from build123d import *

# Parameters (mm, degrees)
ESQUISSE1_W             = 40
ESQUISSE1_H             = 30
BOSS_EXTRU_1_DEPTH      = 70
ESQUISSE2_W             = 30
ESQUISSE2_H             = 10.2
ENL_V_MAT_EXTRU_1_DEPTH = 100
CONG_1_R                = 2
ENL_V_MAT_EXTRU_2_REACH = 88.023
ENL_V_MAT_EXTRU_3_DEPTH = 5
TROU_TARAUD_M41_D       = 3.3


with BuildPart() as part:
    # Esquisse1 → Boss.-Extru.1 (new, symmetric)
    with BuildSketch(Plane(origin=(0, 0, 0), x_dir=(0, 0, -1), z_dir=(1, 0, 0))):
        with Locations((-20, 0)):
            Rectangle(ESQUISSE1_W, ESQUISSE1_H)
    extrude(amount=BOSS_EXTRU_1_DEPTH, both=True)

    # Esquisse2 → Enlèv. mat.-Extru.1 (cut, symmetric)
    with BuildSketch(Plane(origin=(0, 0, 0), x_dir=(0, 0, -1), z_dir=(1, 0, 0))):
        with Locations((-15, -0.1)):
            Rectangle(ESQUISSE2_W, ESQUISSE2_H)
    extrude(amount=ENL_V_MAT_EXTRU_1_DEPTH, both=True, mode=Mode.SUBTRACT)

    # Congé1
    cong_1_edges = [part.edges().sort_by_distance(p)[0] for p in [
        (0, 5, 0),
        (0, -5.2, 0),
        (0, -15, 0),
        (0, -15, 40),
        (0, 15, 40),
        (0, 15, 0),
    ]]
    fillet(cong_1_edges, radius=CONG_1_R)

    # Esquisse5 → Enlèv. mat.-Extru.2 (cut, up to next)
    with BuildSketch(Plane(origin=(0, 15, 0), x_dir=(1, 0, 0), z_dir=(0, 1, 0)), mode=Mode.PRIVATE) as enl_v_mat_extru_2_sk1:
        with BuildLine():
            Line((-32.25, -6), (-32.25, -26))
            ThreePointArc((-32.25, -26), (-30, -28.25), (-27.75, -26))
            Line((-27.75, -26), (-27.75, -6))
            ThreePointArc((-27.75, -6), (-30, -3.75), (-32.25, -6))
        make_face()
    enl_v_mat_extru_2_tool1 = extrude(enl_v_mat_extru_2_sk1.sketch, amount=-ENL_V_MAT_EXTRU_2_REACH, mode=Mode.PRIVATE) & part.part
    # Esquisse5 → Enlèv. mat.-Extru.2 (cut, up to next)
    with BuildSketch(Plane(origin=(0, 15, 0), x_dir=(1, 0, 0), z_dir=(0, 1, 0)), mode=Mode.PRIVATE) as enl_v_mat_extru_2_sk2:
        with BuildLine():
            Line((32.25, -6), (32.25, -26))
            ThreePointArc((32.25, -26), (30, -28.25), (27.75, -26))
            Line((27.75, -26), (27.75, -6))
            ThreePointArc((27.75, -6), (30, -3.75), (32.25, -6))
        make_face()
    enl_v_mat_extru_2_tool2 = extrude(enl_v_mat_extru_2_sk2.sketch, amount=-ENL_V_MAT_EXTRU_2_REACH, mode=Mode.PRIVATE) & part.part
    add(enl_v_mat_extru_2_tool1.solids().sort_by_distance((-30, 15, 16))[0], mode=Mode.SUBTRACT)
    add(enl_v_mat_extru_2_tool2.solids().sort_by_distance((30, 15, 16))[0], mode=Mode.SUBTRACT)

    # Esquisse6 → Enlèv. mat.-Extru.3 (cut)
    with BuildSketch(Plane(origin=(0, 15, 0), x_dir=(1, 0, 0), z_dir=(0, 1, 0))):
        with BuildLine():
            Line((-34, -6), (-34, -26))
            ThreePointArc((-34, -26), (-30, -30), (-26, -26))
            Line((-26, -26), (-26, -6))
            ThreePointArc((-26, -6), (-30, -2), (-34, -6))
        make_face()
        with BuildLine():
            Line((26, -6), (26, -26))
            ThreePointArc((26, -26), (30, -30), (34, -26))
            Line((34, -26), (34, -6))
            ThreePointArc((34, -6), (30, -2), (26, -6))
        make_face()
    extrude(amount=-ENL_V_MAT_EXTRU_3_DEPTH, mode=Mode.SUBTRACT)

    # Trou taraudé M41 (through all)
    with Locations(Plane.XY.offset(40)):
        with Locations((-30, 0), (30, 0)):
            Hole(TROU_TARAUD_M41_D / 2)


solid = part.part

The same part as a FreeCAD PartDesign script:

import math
import FreeCAD as App
import Part
import Sketcher

V = App.Vector
Q = App.Units.Quantity


def edges_at(feature, points):
    """Names of the edges that pass closest to the given points."""
    edges = feature.Shape.Edges
    near = lambda p: min(range(len(edges)), key=lambda i: edges[i].distToShape(Part.Vertex(*p))[0])
    return sorted({f"Edge{near(p) + 1}" for p in points})


def add_polygon(sketch, points):
    """Adds a closed chain of lines whose ends are joined by coincident constraints."""
    first, n = sketch.GeometryCount, len(points)
    for a, b in zip(points, points[1:] + points[:1]):
        sketch.addGeometry(Part.LineSegment(App.Vector(*a, 0), App.Vector(*b, 0)), False)
    for i in range(n):
        sketch.addConstraint(Sketcher.Constraint("Coincident", first + i, 2, first + (i + 1) % n, 1))

doc = App.newDocument("Part")
body = doc.addObject("PartDesign::Body", "Body")

# Sketch on YZ plane
sketch1 = body.newObject("Sketcher::SketchObject", "Sketch")
sketch1.AttachmentSupport = (doc.getObject("YZ_Plane"), [""])
sketch1.MapMode = "FlatFace"
add_polygon(sketch1, [(15, 40), (-15, 40), (-15, 0), (15, 0)])  # lines 0-3
sketch1.addConstraint(Sketcher.Constraint("Horizontal", 0))
sketch1.addConstraint(Sketcher.Constraint("Vertical", 1))
sketch1.addConstraint(Sketcher.Constraint("Horizontal", 2))
sketch1.addConstraint(Sketcher.Constraint("Vertical", 3))
sketch1.addConstraint(Sketcher.Constraint("Symmetric", 1, 2, 2, 2, -1, 1))
sketch1.addConstraint(Sketcher.Constraint("DistanceX", 0, 2, 0, 1, Q("30 mm")))
sketch1.addConstraint(Sketcher.Constraint("DistanceY", 1, 2, 1, 1, Q("40 mm")))
pad1 = body.newObject("PartDesign::Pad", "Pad")
pad1.Profile = sketch1
pad1.Length = 140
pad1.Midplane = True

# Sketch on YZ plane
sketch2 = body.newObject("Sketcher::SketchObject", "Sketch001")
sketch2.AttachmentSupport = (doc.getObject("YZ_Plane"), [""])
sketch2.MapMode = "FlatFace"
add_polygon(sketch2, [(5, 30), (-5.2, 30), (-5.2, 0), (5, 0)])  # lines 0-3
sketch2.addConstraint(Sketcher.Constraint("Horizontal", 0))
sketch2.addConstraint(Sketcher.Constraint("Vertical", 1))
sketch2.addConstraint(Sketcher.Constraint("Horizontal", 2))
sketch2.addConstraint(Sketcher.Constraint("Vertical", 3))
sketch2.addConstraint(Sketcher.Constraint("PointOnObject", 1, 2, -1))
sketch2.addConstraint(Sketcher.Constraint("DistanceY", 1, 2, 1, 1, Q("30 mm")))
sketch2.addConstraint(Sketcher.Constraint("DistanceX", 0, 2, 0, 1, Q("10.2 mm")))
sketch2.addConstraint(Sketcher.Constraint("DistanceX", -1, 1, 2, 2, Q("5 mm")))
pocket1 = body.newObject("PartDesign::Pocket", "Pocket")
pocket1.Profile = sketch2
pocket1.Length = 200
pocket1.Midplane = True
doc.recompute()

fillet = body.newObject("PartDesign::Fillet", "Fillet")
fillet.Base = (pocket1, edges_at(pocket1, [
    (0, 5, 0),
    (0, -5.2, 0),
    (0, -15, 0),
    (0, -15, 40),
    (0, 15, 40),
    (0, 15, 0),
]))
fillet.Radius = 2

# Sketch on XZ plane
sketch3 = body.newObject("Sketcher::SketchObject", "Sketch002")
sketch3.AttachmentSupport = (doc.getObject("XZ_Plane"), [""])
sketch3.MapMode = "FlatFace"
sketch3.AttachmentOffset = App.Placement(V(0, 0, -15), App.Rotation())
sketch3.addGeometry(Part.LineSegment(V(-32.25, 6, 0), V(-32.25, 26, 0)), False)
sketch3.addGeometry(Part.ArcOfCircle(Part.Circle(V(-30, 26, 0), V(0, 0, 1), 2.25), math.radians(0), math.radians(180)), False)
sketch3.addGeometry(Part.LineSegment(V(-27.75, 26, 0), V(-27.75, 6, 0)), False)
sketch3.addGeometry(Part.ArcOfCircle(Part.Circle(V(-30, 6, 0), V(0, 0, 1), 2.25), math.radians(180), math.radians(360)), False)
sketch3.addConstraint(Sketcher.Constraint("Tangent", 0, 2, 1, 2))
sketch3.addConstraint(Sketcher.Constraint("Tangent", 1, 1, 2, 1))
sketch3.addConstraint(Sketcher.Constraint("Tangent", 2, 2, 3, 2))
sketch3.addConstraint(Sketcher.Constraint("Tangent", 3, 1, 0, 1))
sketch3.addConstraint(Sketcher.Constraint("Vertical", 0))
sketch3.addConstraint(Sketcher.Constraint("Vertical", 2))
sketch3.addConstraint(Sketcher.Constraint("DistanceY", 0, 1, 0, 2, Q("20 mm")))
sketch3.addConstraint(Sketcher.Constraint("Radius", 1, Q("2.25 mm")))
sketch3.addConstraint(Sketcher.Constraint("DistanceX", 1, 3, -1, 1, Q("30 mm")))
sketch3.addConstraint(Sketcher.Constraint("DistanceY", -1, 1, 1, 3, Q("26 mm")))
pocket2 = body.newObject("PartDesign::Pocket", "Pocket001")
pocket2.Profile = sketch3
pocket2.Type = "UpToFirst"
pocket2.Reversed = True

# Sketch on XZ plane
sketch4 = body.newObject("Sketcher::SketchObject", "Sketch003")
sketch4.AttachmentSupport = (doc.getObject("XZ_Plane"), [""])
sketch4.MapMode = "FlatFace"
sketch4.AttachmentOffset = App.Placement(V(0, 0, -15), App.Rotation())
sketch4.addGeometry(Part.LineSegment(V(32.25, 26, 0), V(32.25, 6, 0)), False)
sketch4.addGeometry(Part.ArcOfCircle(Part.Circle(V(30, 6, 0), V(0, 0, 1), 2.25), math.radians(180), math.radians(360)), False)
sketch4.addGeometry(Part.LineSegment(V(27.75, 6, 0), V(27.75, 26, 0)), False)
sketch4.addGeometry(Part.ArcOfCircle(Part.Circle(V(30, 26, 0), V(0, 0, 1), 2.25), math.radians(0), math.radians(180)), False)
sketch4.addConstraint(Sketcher.Constraint("Tangent", 0, 2, 1, 2))
sketch4.addConstraint(Sketcher.Constraint("Tangent", 1, 1, 2, 1))
sketch4.addConstraint(Sketcher.Constraint("Tangent", 2, 2, 3, 2))
sketch4.addConstraint(Sketcher.Constraint("Tangent", 3, 1, 0, 1))
sketch4.addConstraint(Sketcher.Constraint("Vertical", 0))
sketch4.addConstraint(Sketcher.Constraint("Vertical", 2))
sketch4.addConstraint(Sketcher.Constraint("DistanceY", 0, 2, 0, 1, Q("20 mm")))
sketch4.addConstraint(Sketcher.Constraint("Radius", 1, Q("2.25 mm")))
sketch4.addConstraint(Sketcher.Constraint("DistanceX", -1, 1, 1, 3, Q("30 mm")))
sketch4.addConstraint(Sketcher.Constraint("DistanceY", -1, 1, 1, 3, Q("6 mm")))
pocket3 = body.newObject("PartDesign::Pocket", "Pocket002")
pocket3.Profile = sketch4
pocket3.Type = "UpToFirst"
pocket3.Reversed = True

# Sketch on XZ plane
sketch5 = body.newObject("Sketcher::SketchObject", "Sketch004")
sketch5.AttachmentSupport = (doc.getObject("XZ_Plane"), [""])
sketch5.MapMode = "FlatFace"
sketch5.AttachmentOffset = App.Placement(V(0, 0, -15), App.Rotation())
sketch5.addGeometry(Part.LineSegment(V(-34, 6, 0), V(-34, 26, 0)), False)
sketch5.addGeometry(Part.ArcOfCircle(Part.Circle(V(-30, 26, 0), V(0, 0, 1), 4), math.radians(0), math.radians(180)), False)
sketch5.addGeometry(Part.LineSegment(V(-26, 26, 0), V(-26, 6, 0)), False)
sketch5.addGeometry(Part.ArcOfCircle(Part.Circle(V(-30, 6, 0), V(0, 0, 1), 4), math.radians(180), math.radians(360)), False)
sketch5.addGeometry(Part.LineSegment(V(26, 6, 0), V(26, 26, 0)), False)
sketch5.addGeometry(Part.ArcOfCircle(Part.Circle(V(30, 26, 0), V(0, 0, 1), 4), math.radians(0), math.radians(180)), False)
sketch5.addGeometry(Part.LineSegment(V(34, 26, 0), V(34, 6, 0)), False)
sketch5.addGeometry(Part.ArcOfCircle(Part.Circle(V(30, 6, 0), V(0, 0, 1), 4), math.radians(180), math.radians(360)), False)
sketch5.addConstraint(Sketcher.Constraint("Tangent", 0, 2, 1, 2))
sketch5.addConstraint(Sketcher.Constraint("Tangent", 1, 1, 2, 1))
sketch5.addConstraint(Sketcher.Constraint("Tangent", 2, 2, 3, 2))
sketch5.addConstraint(Sketcher.Constraint("Tangent", 3, 1, 0, 1))
sketch5.addConstraint(Sketcher.Constraint("Tangent", 4, 2, 5, 2))
sketch5.addConstraint(Sketcher.Constraint("Tangent", 5, 1, 6, 1))
sketch5.addConstraint(Sketcher.Constraint("Tangent", 6, 2, 7, 2))
sketch5.addConstraint(Sketcher.Constraint("Tangent", 7, 1, 4, 1))
sketch5.addConstraint(Sketcher.Constraint("Vertical", 0))
sketch5.addConstraint(Sketcher.Constraint("Vertical", 2))
sketch5.addConstraint(Sketcher.Constraint("Vertical", 4))
sketch5.addConstraint(Sketcher.Constraint("Vertical", 6))
sketch5.addConstraint(Sketcher.Constraint("Equal", 3, 5))
sketch5.addConstraint(Sketcher.Constraint("Symmetric", 1, 3, 5, 3, -2))
sketch5.addConstraint(Sketcher.Constraint("Horizontal", 3, 3, 7, 3))
sketch5.addConstraint(Sketcher.Constraint("Radius", 1, Q("4 mm")))
sketch5.addConstraint(Sketcher.Constraint("DistanceY", 0, 1, 0, 2, Q("20 mm")))
sketch5.addConstraint(Sketcher.Constraint("DistanceX", 1, 3, -1, 1, Q("30 mm")))
sketch5.addConstraint(Sketcher.Constraint("DistanceY", -1, 1, 1, 3, Q("26 mm")))
pocket4 = body.newObject("PartDesign::Pocket", "Pocket003")
pocket4.Profile = sketch5
pocket4.Length = 5
pocket4.Reversed = True

# Sketch on XY plane
sketch6 = body.newObject("Sketcher::SketchObject", "Sketch005")
sketch6.AttachmentSupport = (doc.getObject("XY_Plane"), [""])
sketch6.MapMode = "FlatFace"
sketch6.AttachmentOffset = App.Placement(V(0, 0, 40), App.Rotation())
sketch6.addGeometry(Part.Circle(V(-30, 0, 0), V(0, 0, 1), 1.65), False)
sketch6.addGeometry(Part.Circle(V(30, 0, 0), V(0, 0, 1), 1.65), False)
sketch6.addConstraint(Sketcher.Constraint("Equal", 0, 1))
sketch6.addConstraint(Sketcher.Constraint("Symmetric", 0, 3, 1, 3, -1, 1))
sketch6.addConstraint(Sketcher.Constraint("PointOnObject", 0, 3, -1))
sketch6.addConstraint(Sketcher.Constraint("Diameter", 0, Q("3.3 mm")))
sketch6.addConstraint(Sketcher.Constraint("DistanceX", 0, 3, -1, 1, Q("30 mm")))
doc.recompute()
hole = body.newObject("PartDesign::Hole", "Hole")
hole.Profile = sketch6
hole.ThreadType = "None"
hole.Diameter = 3.3
hole.DepthType = "ThroughAll"

doc.recompute()
